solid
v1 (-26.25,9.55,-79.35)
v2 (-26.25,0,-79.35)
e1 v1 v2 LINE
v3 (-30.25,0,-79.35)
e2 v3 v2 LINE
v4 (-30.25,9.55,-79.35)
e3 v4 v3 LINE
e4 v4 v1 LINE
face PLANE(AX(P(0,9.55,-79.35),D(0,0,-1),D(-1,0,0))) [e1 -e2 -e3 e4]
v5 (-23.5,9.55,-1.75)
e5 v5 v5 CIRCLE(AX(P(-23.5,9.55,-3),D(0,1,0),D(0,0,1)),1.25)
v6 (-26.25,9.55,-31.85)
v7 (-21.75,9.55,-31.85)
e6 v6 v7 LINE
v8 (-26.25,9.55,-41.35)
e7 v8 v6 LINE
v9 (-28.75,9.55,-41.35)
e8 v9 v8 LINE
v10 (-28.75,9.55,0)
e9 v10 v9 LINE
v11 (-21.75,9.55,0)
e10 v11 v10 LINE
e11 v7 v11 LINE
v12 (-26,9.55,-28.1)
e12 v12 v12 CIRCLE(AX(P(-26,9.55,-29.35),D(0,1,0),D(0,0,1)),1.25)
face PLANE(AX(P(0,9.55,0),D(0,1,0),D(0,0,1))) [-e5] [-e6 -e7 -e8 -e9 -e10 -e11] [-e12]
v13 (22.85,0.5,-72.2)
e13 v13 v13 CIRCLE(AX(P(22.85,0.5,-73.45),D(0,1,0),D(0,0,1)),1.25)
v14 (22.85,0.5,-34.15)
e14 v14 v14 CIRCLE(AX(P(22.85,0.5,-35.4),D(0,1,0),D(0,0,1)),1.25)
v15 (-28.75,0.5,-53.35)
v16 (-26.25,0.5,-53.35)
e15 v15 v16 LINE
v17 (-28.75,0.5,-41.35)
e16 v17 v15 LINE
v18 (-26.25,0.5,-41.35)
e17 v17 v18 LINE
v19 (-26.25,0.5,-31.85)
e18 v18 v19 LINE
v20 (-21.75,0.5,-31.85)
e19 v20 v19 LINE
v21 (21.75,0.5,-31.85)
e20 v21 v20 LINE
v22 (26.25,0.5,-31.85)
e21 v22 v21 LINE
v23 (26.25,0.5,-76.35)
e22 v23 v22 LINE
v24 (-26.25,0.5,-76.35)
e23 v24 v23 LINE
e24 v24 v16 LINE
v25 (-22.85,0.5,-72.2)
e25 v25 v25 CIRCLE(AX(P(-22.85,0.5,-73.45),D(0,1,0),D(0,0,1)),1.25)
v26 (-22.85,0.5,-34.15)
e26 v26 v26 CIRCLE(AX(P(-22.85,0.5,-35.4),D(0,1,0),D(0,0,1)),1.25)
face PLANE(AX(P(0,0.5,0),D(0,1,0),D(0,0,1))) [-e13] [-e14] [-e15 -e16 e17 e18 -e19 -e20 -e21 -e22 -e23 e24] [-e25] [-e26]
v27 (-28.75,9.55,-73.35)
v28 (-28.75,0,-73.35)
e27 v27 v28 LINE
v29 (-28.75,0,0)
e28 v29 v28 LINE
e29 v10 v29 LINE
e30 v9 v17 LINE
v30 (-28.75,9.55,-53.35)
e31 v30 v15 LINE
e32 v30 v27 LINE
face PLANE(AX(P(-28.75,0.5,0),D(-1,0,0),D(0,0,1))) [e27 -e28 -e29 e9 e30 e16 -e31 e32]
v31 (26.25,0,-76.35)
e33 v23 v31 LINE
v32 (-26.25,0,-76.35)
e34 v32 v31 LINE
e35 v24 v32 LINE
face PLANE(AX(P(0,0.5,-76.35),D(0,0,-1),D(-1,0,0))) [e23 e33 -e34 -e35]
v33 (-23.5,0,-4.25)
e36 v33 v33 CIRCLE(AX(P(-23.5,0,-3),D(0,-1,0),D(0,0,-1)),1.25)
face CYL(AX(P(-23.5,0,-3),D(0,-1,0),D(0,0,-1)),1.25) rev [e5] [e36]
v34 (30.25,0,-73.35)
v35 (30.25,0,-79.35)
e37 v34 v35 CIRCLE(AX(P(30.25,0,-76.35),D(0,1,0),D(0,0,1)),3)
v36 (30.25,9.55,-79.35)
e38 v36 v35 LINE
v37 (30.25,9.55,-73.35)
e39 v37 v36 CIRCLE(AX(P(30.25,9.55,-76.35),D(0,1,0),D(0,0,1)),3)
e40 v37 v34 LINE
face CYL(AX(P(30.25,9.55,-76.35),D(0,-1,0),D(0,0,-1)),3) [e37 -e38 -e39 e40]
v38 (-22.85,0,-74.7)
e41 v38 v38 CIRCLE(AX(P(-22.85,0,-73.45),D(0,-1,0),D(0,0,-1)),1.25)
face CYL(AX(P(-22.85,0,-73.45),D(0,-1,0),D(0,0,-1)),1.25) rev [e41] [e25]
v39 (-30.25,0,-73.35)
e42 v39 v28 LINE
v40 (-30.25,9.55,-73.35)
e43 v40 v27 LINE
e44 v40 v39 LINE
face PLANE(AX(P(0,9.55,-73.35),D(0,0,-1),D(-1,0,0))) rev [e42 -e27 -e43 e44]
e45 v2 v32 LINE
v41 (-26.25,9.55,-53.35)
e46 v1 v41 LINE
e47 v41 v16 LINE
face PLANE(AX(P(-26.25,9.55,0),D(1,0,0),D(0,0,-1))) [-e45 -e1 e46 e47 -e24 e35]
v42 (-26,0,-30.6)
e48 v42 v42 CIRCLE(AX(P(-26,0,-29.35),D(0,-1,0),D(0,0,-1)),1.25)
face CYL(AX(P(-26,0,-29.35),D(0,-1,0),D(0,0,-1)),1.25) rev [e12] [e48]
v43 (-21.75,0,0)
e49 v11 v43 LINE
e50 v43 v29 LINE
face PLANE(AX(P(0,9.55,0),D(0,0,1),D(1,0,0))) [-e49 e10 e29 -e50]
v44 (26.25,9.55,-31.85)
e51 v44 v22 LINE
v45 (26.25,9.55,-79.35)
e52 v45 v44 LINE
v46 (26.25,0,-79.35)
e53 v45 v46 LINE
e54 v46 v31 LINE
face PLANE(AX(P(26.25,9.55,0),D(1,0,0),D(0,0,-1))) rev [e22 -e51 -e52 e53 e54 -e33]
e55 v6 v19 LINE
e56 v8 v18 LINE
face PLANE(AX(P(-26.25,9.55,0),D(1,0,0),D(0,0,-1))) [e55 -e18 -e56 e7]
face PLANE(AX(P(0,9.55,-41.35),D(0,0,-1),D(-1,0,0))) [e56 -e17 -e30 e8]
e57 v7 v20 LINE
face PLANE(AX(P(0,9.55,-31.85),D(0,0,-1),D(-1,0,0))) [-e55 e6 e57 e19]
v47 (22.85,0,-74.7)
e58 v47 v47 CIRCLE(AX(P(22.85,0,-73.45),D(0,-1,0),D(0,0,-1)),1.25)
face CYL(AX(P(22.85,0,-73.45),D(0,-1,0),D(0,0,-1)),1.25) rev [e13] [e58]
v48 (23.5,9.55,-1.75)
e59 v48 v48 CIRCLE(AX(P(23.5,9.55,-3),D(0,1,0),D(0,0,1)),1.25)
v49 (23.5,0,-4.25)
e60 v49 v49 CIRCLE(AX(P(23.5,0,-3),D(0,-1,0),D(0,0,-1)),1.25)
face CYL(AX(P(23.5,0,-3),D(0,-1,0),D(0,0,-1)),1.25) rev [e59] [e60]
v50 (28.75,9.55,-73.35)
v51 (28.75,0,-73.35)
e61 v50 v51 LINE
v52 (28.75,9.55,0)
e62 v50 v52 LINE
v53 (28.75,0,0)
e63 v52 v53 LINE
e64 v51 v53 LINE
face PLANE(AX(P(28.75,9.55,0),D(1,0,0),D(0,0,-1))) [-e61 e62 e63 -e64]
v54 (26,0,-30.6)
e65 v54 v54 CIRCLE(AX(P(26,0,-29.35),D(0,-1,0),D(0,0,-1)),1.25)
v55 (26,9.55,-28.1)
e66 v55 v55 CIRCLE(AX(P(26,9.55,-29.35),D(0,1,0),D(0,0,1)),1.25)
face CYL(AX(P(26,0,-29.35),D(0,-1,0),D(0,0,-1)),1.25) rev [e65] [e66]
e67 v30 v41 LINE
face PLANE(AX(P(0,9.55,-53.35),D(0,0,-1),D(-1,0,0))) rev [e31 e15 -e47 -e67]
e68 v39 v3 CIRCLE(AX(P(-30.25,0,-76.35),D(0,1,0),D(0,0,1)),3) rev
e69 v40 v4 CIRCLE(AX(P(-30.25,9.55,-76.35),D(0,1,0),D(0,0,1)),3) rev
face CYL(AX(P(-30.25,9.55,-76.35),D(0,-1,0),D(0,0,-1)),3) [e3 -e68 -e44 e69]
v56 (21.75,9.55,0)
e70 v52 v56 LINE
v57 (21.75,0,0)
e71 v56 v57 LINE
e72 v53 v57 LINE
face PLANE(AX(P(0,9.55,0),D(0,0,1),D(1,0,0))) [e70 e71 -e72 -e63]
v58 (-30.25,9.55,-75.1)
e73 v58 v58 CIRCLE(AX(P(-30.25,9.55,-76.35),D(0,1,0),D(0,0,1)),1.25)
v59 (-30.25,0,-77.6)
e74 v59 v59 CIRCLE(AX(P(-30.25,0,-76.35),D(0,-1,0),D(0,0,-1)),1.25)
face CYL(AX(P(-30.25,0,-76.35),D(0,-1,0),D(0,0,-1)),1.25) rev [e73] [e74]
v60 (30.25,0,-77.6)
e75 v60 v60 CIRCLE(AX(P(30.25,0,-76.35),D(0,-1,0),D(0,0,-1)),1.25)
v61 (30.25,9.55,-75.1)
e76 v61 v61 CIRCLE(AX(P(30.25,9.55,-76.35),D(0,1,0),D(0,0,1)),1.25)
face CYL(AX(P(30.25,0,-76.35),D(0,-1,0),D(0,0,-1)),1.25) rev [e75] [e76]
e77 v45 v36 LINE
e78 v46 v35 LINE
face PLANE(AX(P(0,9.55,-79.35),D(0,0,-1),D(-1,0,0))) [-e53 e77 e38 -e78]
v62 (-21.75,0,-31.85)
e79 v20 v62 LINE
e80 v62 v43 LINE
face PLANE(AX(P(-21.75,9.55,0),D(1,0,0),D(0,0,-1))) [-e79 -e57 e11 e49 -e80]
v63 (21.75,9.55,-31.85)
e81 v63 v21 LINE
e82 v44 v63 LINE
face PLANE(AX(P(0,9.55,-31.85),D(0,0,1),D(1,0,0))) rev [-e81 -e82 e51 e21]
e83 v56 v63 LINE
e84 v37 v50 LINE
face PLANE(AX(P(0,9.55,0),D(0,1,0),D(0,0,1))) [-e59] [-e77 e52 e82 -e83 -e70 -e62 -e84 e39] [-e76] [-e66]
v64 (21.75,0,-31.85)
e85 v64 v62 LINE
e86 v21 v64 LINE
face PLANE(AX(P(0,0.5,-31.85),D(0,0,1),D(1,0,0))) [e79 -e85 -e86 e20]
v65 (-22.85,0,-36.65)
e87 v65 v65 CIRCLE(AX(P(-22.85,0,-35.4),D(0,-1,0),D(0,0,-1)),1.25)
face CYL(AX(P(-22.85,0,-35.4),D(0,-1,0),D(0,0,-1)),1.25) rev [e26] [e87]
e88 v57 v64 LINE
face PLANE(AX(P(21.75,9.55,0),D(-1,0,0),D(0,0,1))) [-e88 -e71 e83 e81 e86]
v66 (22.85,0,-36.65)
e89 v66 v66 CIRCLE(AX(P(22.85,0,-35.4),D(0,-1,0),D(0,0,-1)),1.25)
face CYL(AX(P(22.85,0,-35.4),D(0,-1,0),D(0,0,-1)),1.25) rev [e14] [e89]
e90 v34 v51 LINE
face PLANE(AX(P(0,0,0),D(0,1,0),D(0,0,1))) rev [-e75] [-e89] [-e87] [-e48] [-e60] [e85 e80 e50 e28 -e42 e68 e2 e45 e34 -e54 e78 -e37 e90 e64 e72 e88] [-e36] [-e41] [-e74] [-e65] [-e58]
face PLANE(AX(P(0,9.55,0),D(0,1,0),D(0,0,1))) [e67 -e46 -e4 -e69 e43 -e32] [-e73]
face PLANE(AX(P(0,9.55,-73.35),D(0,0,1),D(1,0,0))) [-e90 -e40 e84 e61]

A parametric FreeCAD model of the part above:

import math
import FreeCAD as App
import Part
import Sketcher
Q = App.Units.Quantity

doc = App.newDocument("Part")
params = doc.addObject("Spreadsheet::Sheet", "Params")
for row, (alias, value) in enumerate([
    ("sketch1_height", "23 mm"),
    ("sketch1_height2", "12 mm"),
    ("sketch1_width", "2.5 mm"),
    ("sketch1_width2", "52.5 mm"),
    ("sketch1_height3", "9.5 mm"),
    ("pad1_length", "0.5 mm"),
    ("sketch2_radius", "3 mm"),
    ("sketch2_width", "4 mm"),
    ("sketch2_width2", "7 mm"),
    ("sketch2_height", "20 mm"),
    ("sketch2_width3", "2.5 mm"),
    ("pad2_length", "9.55 mm"),
    ("sketch3_diameter", "2.5 mm"),
    ("hole_diameter", "2.5 mm"),
    ("hole_depth", "12 mm"),
], start=1):
    params.set(f"A{row}", alias)
    params.set(f"B{row}", "=" + value)
    params.setAlias(f"B{row}", alias)

body = doc.addObject("PartDesign::Body", "Body")

sketch1 = doc.addObject("Sketcher::SketchObject", "Sketch")
body.addObject(sketch1)
sketch1.AttachmentSupport = (doc.XZ_Plane, [""])
sketch1.MapMode = "FlatFace"
sketch1.addGeometry(Part.LineSegment(App.Vector(-26.2, -76.3, 0), App.Vector(-26.2, -53.4, 0)), False)
sketch1.addGeometry(Part.LineSegment(App.Vector(-26.2, -53.4, 0), App.Vector(-28.8, -53.4, 0)), False)
sketch1.addGeometry(Part.LineSegment(App.Vector(-28.8, -53.4, 0), App.Vector(-28.8, -41.4, 0)), False)
sketch1.addGeometry(Part.LineSegment(App.Vector(-28.8, -41.4, 0), App.Vector(-26.2, -41.4, 0)), False)
sketch1.addGeometry(Part.LineSegment(App.Vector(-26.2, -41.4, 0), App.Vector(-26.2, -31.9, 0)), False)
sketch1.addGeometry(Part.LineSegment(App.Vector(-26.2, -31.9, 0), App.Vector(26.2, -31.9, 0)), False)
sketch1.addGeometry(Part.LineSegment(App.Vector(26.2, -31.9, 0), App.Vector(26.2, -76.3, 0)), False)
sketch1.addGeometry(Part.LineSegment(App.Vector(26.2, -76.3, 0), App.Vector(-26.2, -76.3, 0)), False)
sketch1.addConstraint(Sketcher.Constraint("Coincident", 0, 2, 1, 1))
sketch1.addConstraint(Sketcher.Constraint("Coincident", 1, 2, 2, 1))
sketch1.addConstraint(Sketcher.Constraint("Coincident", 2, 2, 3, 1))
sketch1.addConstraint(Sketcher.Constraint("Coincident", 3, 2, 4, 1))
sketch1.addConstraint(Sketcher.Constraint("Coincident", 4, 2, 5, 1))
sketch1.addConstraint(Sketcher.Constraint("Coincident", 5, 2, 6, 1))
sketch1.addConstraint(Sketcher.Constraint("Coincident", 6, 2, 7, 1))
sketch1.addConstraint(Sketcher.Constraint("Coincident", 7, 2, 0, 1))
sketch1.addConstraint(Sketcher.Constraint("Vertical", 0))
sketch1.addConstraint(Sketcher.Constraint("Horizontal", 1))
sketch1.addConstraint(Sketcher.Constraint("Vertical", 2))
sketch1.addConstraint(Sketcher.Constraint("Horizontal", 3))
sketch1.addConstraint(Sketcher.Constraint("Vertical", 4))
sketch1.addConstraint(Sketcher.Constraint("Horizontal", 5))
sketch1.addConstraint(Sketcher.Constraint("Vertical", 6))
sketch1.addConstraint(Sketcher.Constraint("Horizontal", 7))
sketch1.addConstraint(Sketcher.Constraint("Vertical", 0, 2, 3, 2))
sketch1.addConstraint(Sketcher.Constraint("DistanceY", 0, 1, 0, 2, Q("23 mm")))
sketch1.addConstraint(Sketcher.Constraint("DistanceY", 2, 1, 2, 2, Q("12 mm")))
sketch1.addConstraint(Sketcher.Constraint("DistanceX", 1, 2, 1, 1, Q("2.5 mm")))
sketch1.addConstraint(Sketcher.Constraint("DistanceX", 5, 1, 5, 2, Q("52.5 mm")))
sketch1.addConstraint(Sketcher.Constraint("DistanceY", 4, 1, 4, 2, Q("9.5 mm")))
sketch1.addConstraint(Sketcher.Constraint("DistanceX", 0, 2, -1, 1, Q("26.25 mm")))
sketch1.addConstraint(Sketcher.Constraint("DistanceY", 0, 2, -1, 1, Q("53.35 mm")))
sketch1.setExpression("Constraints[17]", "Params.sketch1_height")
sketch1.setExpression("Constraints[18]", "Params.sketch1_height2")
sketch1.setExpression("Constraints[19]", "Params.sketch1_width")
sketch1.setExpression("Constraints[20]", "Params.sketch1_width2")
sketch1.setExpression("Constraints[21]", "Params.sketch1_height3")
pad1 = doc.addObject("PartDesign::Pad", "Pad")
body.addObject(pad1)
pad1.Profile = sketch1
pad1.setExpression("Length", "Params.pad1_length")
pad1.Reversed = True

sketch2 = doc.addObject("Sketcher::SketchObject", "Sketch001")
body.addObject(sketch2)
sketch2.AttachmentSupport = (doc.XZ_Plane, [""])
sketch2.MapMode = "FlatFace"
sketch2.addGeometry(Part.LineSegment(App.Vector(-28.8, -73.3, 0), App.Vector(-28.8, -53.4, 0)), False)
sketch2.addGeometry(Part.LineSegment(App.Vector(-28.8, -53.4, 0), App.Vector(-26.2, -53.4, 0)), False)
sketch2.addGeometry(Part.LineSegment(App.Vector(-26.2, -53.4, 0), App.Vector(-26.2, -79.3, 0)), False)
sketch2.addGeometry(Part.LineSegment(App.Vector(-26.2, -79.3, 0), App.Vector(-30.2, -79.3, 0)), False)
sketch2.addGeometry(Part.ArcOfCircle(Part.Circle(App.Vector(-30.2, -76.3, 0), App.Vector(0, 0, 1), 3), math.radians(90), math.radians(270)), False)
sketch2.addGeometry(Part.LineSegment(App.Vector(-30.2, -73.3, 0), App.Vector(-28.8, -73.3, 0)), False)
sketch2.addGeometry(Part.LineSegment(App.Vector(26.2, -79.3, 0), App.Vector(26.2, -31.9, 0)), False)
sketch2.addGeometry(Part.LineSegment(App.Vector(26.2, -31.9, 0), App.Vector(21.8, -31.9, 0)), False)
sketch2.addGeometry(Part.LineSegment(App.Vector(21.8, -31.9, 0), App.Vector(21.8, 0, 0)), False)
sketch2.addGeometry(Part.LineSegment(App.Vector(21.8, 0, 0), App.Vector(28.8, 0, 0)), False)
sketch2.addGeometry(Part.LineSegment(App.Vector(28.8, 0, 0), App.Vector(28.8, -73.3, 0)), False)
sketch2.addGeometry(Part.LineSegment(App.Vector(28.8, -73.3, 0), App.Vector(30.2, -73.3, 0)), False)
sketch2.addGeometry(Part.ArcOfCircle(Part.Circle(App.Vector(30.2, -76.3, 0), App.Vector(0, 0, 1), 3), math.radians(-90), math.radians(90)), False)
sketch2.addGeometry(Part.LineSegment(App.Vector(30.2, -79.3, 0), App.Vector(26.2, -79.3, 0)), False)
sketch2.addGeometry(Part.LineSegment(App.Vector(-26.2, -31.9, 0), App.Vector(-26.2, -41.4, 0)), False)
sketch2.addGeometry(Part.LineSegment(App.Vector(-26.2, -41.4, 0), App.Vector(-28.8, -41.4, 0)), False)
sketch2.addGeometry(Part.LineSegment(App.Vector(-28.8, -41.4, 0), App.Vector(-28.8, 0, 0)), False)
sketch2.addGeometry(Part.LineSegment(App.Vector(-28.8, 0, 0), App.Vector(-21.8, 0, 0)), False)
sketch2.addGeometry(Part.LineSegment(App.Vector(-21.8, 0, 0), App.Vector(-21.8, -31.9, 0)), False)
sketch2.addGeometry(Part.LineSegment(App.Vector(-21.8, -31.9, 0), App.Vector(-26.2, -31.9, 0)), False)
sketch2.addConstraint(Sketcher.Constraint("Coincident", 0, 2, 1, 1))
sketch2.addConstraint(Sketcher.Constraint("Coincident", 1, 2, 2, 1))
sketch2.addConstraint(Sketcher.Constraint("Coincident", 2, 2, 3, 1))
sketch2.addConstraint(Sketcher.Constraint("Tangent", 3, 2, 4, 2))
sketch2.addConstraint(Sketcher.Constraint("Tangent", 4, 1, 5, 1))
sketch2.addConstraint(Sketcher.Constraint("Coincident", 5, 2, 0, 1))
sketch2.addConstraint(Sketcher.Constraint("Coincident", 6, 2, 7, 1))
sketch2.addConstraint(Sketcher.Constraint("Coincident", 7, 2, 8, 1))
sketch2.addConstraint(Sketcher.Constraint("Coincident", 8, 2, 9, 1))
sketch2.addConstraint(Sketcher.Constraint("Coincident", 9, 2, 10, 1))
sketch2.addConstraint(Sketcher.Constraint("Coincident", 10, 2, 11, 1))
sketch2.addConstraint(Sketcher.Constraint("Tangent", 11, 2, 12, 2))
sketch2.addConstraint(Sketcher.Constraint("Tangent", 12, 1, 13, 1))
sketch2.addConstraint(Sketcher.Constraint("Coincident", 13, 2, 6, 1))
sketch2.addConstraint(Sketcher.Constraint("Coincident", 14, 2, 15, 1))
sketch2.addConstraint(Sketcher.Constraint("Coincident", 15, 2, 16, 1))
sketch2.addConstraint(Sketcher.Constraint("Coincident", 16, 2, 17, 1))
sketch2.addConstraint(Sketcher.Constraint("Coincident", 17, 2, 18, 1))
sketch2.addConstraint(Sketcher.Constraint("Coincident", 18, 2, 19, 1))
sketch2.addConstraint(Sketcher.Constraint("Coincident", 19, 2, 14, 1))
sketch2.addConstraint(Sketcher.Constraint("Vertical", 0))
sketch2.addConstraint(Sketcher.Constraint("Horizontal", 1))
sketch2.addConstraint(Sketcher.Constraint("Vertical", 2))
sketch2.addConstraint(Sketcher.Constraint("Horizontal", 3))
sketch2.addConstraint(Sketcher.Constraint("Horizontal", 5))
sketch2.addConstraint(Sketcher.Constraint("Vertical", 6))
sketch2.addConstraint(Sketcher.Constraint("Horizontal", 7))
sketch2.addConstraint(Sketcher.Constraint("Vertical", 8))
sketch2.addConstraint(Sketcher.Constraint("Horizontal", 9))
sketch2.addConstraint(Sketcher.Constraint("Vertical", 10))
sketch2.addConstraint(Sketcher.Constraint("Horizontal", 11))
sketch2.addConstraint(Sketcher.Constraint("Horizontal", 13))
sketch2.addConstraint(Sketcher.Constraint("Vertical", 14))
sketch2.addConstraint(Sketcher.Constraint("Horizontal", 15))
sketch2.addConstraint(Sketcher.Constraint("Vertical", 16))
sketch2.addConstraint(Sketcher.Constraint("Horizontal", 17))
sketch2.addConstraint(Sketcher.Constraint("Vertical", 18))
sketch2.addConstraint(Sketcher.Constraint("Horizontal", 19))
sketch2.addConstraint(Sketcher.Constraint("Equal", 4, 12))
sketch2.addConstraint(Sketcher.Constraint("Symmetric", 9, 2, 16, 2, -1, 1))
sketch2.addConstraint(Sketcher.Constraint("Symmetric", 4, 3, 12, 3, -2))
sketch2.addConstraint(Sketcher.Constraint("Symmetric", 8, 2, 17, 2, -2))
sketch2.addConstraint(Sketcher.Constraint("Symmetric", 6, 2, 19, 2, -2))
sketch2.addConstraint(Sketcher.Constraint("Vertical", 2, 2, 14, 2))
sketch2.addConstraint(Sketcher.Constraint("Vertical", 5, 2, 15, 2))
sketch2.addConstraint(Sketcher.Constraint("Radius", 4, Q("3 mm")))
sketch2.addConstraint(Sketcher.Constraint("DistanceX", 3, 2, 3, 1, Q("4 mm")))
sketch2.addConstraint(Sketcher.Constraint("DistanceX", 9, 1, 9, 2, Q("7 mm")))
sketch2.addConstraint(Sketcher.Constraint("DistanceY", 0, 1, 0, 2, Q("20 mm")))
sketch2.addConstraint(Sketcher.Constraint("DistanceX", 1, 1, 1, 2, Q("2.5 mm")))
sketch2.addConstraint(Sketcher.Constraint("DistanceY", 6, 1, 6, 2, Q("47.5 mm")))
sketch2.addConstraint(Sketcher.Constraint("DistanceY", 14, 2, 14, 1, Q("9.5 mm")))
sketch2.addConstraint(Sketcher.Constraint("DistanceX", 0, 2, 12, 3, Q("59 mm")))
sketch2.addConstraint(Sketcher.Constraint("DistanceY", 8, 1, 8, 2, Q("31.85 mm")))
sketch2.setExpression("Constraints[45]", "Params.sketch2_radius")
sketch2.setExpression("Constraints[46]", "Params.sketch2_width")
sketch2.setExpression("Constraints[47]", "Params.sketch2_width2")
sketch2.setExpression("Constraints[48]", "Params.sketch2_height")
sketch2.setExpression("Constraints[49]", "Params.sketch2_width3")
pad2 = doc.addObject("PartDesign::Pad", "Pad001")
body.addObject(pad2)
pad2.Profile = sketch2
pad2.setExpression("Length", "Params.pad2_length")
pad2.Reversed = True

sketch3 = doc.addObject("Sketcher::SketchObject", "Sketch002")
body.addObject(sketch3)
sketch3.AttachmentSupport = (doc.XZ_Plane, [""])
sketch3.MapMode = "FlatFace"
sketch3.addGeometry(Part.Circle(App.Vector(22.9, -73.5, 0), App.Vector(0, 0, 1), 1.2), False)
sketch3.addGeometry(Part.Circle(App.Vector(-22.9, -73.5, 0), App.Vector(0, 0, 1), 1.2), False)
sketch3.addGeometry(Part.Circle(App.Vector(-26, -29.4, 0), App.Vector(0, 0, 1), 1.2), False)
sketch3.addGeometry(Part.Circle(App.Vector(-22.9, -35.4, 0), App.Vector(0, 0, 1), 1.2), False)
sketch3.addGeometry(Part.Circle(App.Vector(22.9, -35.4, 0), App.Vector(0, 0, 1), 1.2), False)
sketch3.addGeometry(Part.Circle(App.Vector(26, -29.4, 0), App.Vector(0, 0, 1), 1.2), False)
sketch3.addGeometry(Part.Circle(App.Vector(23.5, -3, 0), App.Vector(0, 0, 1), 1.2), False)
sketch3.addGeometry(Part.Circle(App.Vector(-23.5, -3, 0), App.Vector(0, 0, 1), 1.2), False)
sketch3.addGeometry(Part.Circle(App.Vector(30.2, -76.3, 0), App.Vector(0, 0, 1), 1.2), False)
sketch3.addGeometry(Part.Circle(App.Vector(-30.2, -76.3, 0), App.Vector(0, 0, 1), 1.2), False)
sketch3.addConstraint(Sketcher.Constraint("Equal", 0, 1))
sketch3.addConstraint(Sketcher.Constraint("Equal", 1, 2))
sketch3.addConstraint(Sketcher.Constraint("Equal", 2, 3))
sketch3.addConstraint(Sketcher.Constraint("Equal", 3, 4))
sketch3.addConstraint(Sketcher.Constraint("Equal", 4, 5))
sketch3.addConstraint(Sketcher.Constraint("Equal", 5, 6))
sketch3.addConstraint(Sketcher.Constraint("Equal", 6, 7))
sketch3.addConstraint(Sketcher.Constraint("Equal", 7, 8))
sketch3.addConstraint(Sketcher.Constraint("Equal", 8, 9))
sketch3.addConstraint(Sketcher.Constraint("Symmetric", 0, 3, 1, 3, -2))
sketch3.addConstraint(Sketcher.Constraint("Symmetric", 3, 3, 4, 3, -2))
sketch3.addConstraint(Sketcher.Constraint("Symmetric", 2, 3, 5, 3, -2))
sketch3.addConstraint(Sketcher.Constraint("Symmetric", 6, 3, 7, 3, -2))
sketch3.addConstraint(Sketcher.Constraint("Symmetric", 8, 3, 9, 3, -2))
sketch3.addConstraint(Sketcher.Constraint("Vertical", 1, 3, 3, 3))
sketch3.addConstraint(Sketcher.Constraint("Diameter", 0, Q("2.5 mm")))
sketch3.addConstraint(Sketcher.Constraint("DistanceX", 2, 3, -1, 1, Q("26 mm")))
sketch3.addConstraint(Sketcher.Constraint("DistanceY", 6, 3, -1, 1, Q("3 mm")))
sketch3.addConstraint(Sketcher.Constraint("DistanceX", 7, 3, 6, 3, Q("47 mm")))
sketch3.addConstraint(Sketcher.Constraint("DistanceY", 8, 3, 5, 3, Q("47 mm")))
sketch3.addConstraint(Sketcher.Constraint("DistanceY", 3, 3, -1, 1, Q("35.4 mm")))
sketch3.addConstraint(Sketcher.Constraint("DistanceX", 1, 3, 0, 3, Q("45.7 mm")))
sketch3.addConstraint(Sketcher.Constraint("DistanceY", 1, 3, 2, 3, Q("44.1 mm")))
sketch3.addConstraint(Sketcher.Constraint("DistanceX", 0, 3, 8, 3, Q("7.4 mm")))
sketch3.addConstraint(Sketcher.Constraint("DistanceY", 0, 3, -1, 1, Q("73.45 mm")))
sketch3.setExpression("Constraints[15]", "Params.sketch3_diameter")
doc.recompute()
hole = doc.addObject("PartDesign::Hole", "Hole")
body.addObject(hole)
hole.Profile = sketch3
hole.ThreadType = "None"
hole.setExpression("Diameter", "Params.hole_diameter")
hole.DepthType = "Dimension"
hole.setExpression("Depth", "Params.hole_depth")
hole.DrillPoint = "Angled"
hole.DrillPointAngle = 118

doc.recompute()
